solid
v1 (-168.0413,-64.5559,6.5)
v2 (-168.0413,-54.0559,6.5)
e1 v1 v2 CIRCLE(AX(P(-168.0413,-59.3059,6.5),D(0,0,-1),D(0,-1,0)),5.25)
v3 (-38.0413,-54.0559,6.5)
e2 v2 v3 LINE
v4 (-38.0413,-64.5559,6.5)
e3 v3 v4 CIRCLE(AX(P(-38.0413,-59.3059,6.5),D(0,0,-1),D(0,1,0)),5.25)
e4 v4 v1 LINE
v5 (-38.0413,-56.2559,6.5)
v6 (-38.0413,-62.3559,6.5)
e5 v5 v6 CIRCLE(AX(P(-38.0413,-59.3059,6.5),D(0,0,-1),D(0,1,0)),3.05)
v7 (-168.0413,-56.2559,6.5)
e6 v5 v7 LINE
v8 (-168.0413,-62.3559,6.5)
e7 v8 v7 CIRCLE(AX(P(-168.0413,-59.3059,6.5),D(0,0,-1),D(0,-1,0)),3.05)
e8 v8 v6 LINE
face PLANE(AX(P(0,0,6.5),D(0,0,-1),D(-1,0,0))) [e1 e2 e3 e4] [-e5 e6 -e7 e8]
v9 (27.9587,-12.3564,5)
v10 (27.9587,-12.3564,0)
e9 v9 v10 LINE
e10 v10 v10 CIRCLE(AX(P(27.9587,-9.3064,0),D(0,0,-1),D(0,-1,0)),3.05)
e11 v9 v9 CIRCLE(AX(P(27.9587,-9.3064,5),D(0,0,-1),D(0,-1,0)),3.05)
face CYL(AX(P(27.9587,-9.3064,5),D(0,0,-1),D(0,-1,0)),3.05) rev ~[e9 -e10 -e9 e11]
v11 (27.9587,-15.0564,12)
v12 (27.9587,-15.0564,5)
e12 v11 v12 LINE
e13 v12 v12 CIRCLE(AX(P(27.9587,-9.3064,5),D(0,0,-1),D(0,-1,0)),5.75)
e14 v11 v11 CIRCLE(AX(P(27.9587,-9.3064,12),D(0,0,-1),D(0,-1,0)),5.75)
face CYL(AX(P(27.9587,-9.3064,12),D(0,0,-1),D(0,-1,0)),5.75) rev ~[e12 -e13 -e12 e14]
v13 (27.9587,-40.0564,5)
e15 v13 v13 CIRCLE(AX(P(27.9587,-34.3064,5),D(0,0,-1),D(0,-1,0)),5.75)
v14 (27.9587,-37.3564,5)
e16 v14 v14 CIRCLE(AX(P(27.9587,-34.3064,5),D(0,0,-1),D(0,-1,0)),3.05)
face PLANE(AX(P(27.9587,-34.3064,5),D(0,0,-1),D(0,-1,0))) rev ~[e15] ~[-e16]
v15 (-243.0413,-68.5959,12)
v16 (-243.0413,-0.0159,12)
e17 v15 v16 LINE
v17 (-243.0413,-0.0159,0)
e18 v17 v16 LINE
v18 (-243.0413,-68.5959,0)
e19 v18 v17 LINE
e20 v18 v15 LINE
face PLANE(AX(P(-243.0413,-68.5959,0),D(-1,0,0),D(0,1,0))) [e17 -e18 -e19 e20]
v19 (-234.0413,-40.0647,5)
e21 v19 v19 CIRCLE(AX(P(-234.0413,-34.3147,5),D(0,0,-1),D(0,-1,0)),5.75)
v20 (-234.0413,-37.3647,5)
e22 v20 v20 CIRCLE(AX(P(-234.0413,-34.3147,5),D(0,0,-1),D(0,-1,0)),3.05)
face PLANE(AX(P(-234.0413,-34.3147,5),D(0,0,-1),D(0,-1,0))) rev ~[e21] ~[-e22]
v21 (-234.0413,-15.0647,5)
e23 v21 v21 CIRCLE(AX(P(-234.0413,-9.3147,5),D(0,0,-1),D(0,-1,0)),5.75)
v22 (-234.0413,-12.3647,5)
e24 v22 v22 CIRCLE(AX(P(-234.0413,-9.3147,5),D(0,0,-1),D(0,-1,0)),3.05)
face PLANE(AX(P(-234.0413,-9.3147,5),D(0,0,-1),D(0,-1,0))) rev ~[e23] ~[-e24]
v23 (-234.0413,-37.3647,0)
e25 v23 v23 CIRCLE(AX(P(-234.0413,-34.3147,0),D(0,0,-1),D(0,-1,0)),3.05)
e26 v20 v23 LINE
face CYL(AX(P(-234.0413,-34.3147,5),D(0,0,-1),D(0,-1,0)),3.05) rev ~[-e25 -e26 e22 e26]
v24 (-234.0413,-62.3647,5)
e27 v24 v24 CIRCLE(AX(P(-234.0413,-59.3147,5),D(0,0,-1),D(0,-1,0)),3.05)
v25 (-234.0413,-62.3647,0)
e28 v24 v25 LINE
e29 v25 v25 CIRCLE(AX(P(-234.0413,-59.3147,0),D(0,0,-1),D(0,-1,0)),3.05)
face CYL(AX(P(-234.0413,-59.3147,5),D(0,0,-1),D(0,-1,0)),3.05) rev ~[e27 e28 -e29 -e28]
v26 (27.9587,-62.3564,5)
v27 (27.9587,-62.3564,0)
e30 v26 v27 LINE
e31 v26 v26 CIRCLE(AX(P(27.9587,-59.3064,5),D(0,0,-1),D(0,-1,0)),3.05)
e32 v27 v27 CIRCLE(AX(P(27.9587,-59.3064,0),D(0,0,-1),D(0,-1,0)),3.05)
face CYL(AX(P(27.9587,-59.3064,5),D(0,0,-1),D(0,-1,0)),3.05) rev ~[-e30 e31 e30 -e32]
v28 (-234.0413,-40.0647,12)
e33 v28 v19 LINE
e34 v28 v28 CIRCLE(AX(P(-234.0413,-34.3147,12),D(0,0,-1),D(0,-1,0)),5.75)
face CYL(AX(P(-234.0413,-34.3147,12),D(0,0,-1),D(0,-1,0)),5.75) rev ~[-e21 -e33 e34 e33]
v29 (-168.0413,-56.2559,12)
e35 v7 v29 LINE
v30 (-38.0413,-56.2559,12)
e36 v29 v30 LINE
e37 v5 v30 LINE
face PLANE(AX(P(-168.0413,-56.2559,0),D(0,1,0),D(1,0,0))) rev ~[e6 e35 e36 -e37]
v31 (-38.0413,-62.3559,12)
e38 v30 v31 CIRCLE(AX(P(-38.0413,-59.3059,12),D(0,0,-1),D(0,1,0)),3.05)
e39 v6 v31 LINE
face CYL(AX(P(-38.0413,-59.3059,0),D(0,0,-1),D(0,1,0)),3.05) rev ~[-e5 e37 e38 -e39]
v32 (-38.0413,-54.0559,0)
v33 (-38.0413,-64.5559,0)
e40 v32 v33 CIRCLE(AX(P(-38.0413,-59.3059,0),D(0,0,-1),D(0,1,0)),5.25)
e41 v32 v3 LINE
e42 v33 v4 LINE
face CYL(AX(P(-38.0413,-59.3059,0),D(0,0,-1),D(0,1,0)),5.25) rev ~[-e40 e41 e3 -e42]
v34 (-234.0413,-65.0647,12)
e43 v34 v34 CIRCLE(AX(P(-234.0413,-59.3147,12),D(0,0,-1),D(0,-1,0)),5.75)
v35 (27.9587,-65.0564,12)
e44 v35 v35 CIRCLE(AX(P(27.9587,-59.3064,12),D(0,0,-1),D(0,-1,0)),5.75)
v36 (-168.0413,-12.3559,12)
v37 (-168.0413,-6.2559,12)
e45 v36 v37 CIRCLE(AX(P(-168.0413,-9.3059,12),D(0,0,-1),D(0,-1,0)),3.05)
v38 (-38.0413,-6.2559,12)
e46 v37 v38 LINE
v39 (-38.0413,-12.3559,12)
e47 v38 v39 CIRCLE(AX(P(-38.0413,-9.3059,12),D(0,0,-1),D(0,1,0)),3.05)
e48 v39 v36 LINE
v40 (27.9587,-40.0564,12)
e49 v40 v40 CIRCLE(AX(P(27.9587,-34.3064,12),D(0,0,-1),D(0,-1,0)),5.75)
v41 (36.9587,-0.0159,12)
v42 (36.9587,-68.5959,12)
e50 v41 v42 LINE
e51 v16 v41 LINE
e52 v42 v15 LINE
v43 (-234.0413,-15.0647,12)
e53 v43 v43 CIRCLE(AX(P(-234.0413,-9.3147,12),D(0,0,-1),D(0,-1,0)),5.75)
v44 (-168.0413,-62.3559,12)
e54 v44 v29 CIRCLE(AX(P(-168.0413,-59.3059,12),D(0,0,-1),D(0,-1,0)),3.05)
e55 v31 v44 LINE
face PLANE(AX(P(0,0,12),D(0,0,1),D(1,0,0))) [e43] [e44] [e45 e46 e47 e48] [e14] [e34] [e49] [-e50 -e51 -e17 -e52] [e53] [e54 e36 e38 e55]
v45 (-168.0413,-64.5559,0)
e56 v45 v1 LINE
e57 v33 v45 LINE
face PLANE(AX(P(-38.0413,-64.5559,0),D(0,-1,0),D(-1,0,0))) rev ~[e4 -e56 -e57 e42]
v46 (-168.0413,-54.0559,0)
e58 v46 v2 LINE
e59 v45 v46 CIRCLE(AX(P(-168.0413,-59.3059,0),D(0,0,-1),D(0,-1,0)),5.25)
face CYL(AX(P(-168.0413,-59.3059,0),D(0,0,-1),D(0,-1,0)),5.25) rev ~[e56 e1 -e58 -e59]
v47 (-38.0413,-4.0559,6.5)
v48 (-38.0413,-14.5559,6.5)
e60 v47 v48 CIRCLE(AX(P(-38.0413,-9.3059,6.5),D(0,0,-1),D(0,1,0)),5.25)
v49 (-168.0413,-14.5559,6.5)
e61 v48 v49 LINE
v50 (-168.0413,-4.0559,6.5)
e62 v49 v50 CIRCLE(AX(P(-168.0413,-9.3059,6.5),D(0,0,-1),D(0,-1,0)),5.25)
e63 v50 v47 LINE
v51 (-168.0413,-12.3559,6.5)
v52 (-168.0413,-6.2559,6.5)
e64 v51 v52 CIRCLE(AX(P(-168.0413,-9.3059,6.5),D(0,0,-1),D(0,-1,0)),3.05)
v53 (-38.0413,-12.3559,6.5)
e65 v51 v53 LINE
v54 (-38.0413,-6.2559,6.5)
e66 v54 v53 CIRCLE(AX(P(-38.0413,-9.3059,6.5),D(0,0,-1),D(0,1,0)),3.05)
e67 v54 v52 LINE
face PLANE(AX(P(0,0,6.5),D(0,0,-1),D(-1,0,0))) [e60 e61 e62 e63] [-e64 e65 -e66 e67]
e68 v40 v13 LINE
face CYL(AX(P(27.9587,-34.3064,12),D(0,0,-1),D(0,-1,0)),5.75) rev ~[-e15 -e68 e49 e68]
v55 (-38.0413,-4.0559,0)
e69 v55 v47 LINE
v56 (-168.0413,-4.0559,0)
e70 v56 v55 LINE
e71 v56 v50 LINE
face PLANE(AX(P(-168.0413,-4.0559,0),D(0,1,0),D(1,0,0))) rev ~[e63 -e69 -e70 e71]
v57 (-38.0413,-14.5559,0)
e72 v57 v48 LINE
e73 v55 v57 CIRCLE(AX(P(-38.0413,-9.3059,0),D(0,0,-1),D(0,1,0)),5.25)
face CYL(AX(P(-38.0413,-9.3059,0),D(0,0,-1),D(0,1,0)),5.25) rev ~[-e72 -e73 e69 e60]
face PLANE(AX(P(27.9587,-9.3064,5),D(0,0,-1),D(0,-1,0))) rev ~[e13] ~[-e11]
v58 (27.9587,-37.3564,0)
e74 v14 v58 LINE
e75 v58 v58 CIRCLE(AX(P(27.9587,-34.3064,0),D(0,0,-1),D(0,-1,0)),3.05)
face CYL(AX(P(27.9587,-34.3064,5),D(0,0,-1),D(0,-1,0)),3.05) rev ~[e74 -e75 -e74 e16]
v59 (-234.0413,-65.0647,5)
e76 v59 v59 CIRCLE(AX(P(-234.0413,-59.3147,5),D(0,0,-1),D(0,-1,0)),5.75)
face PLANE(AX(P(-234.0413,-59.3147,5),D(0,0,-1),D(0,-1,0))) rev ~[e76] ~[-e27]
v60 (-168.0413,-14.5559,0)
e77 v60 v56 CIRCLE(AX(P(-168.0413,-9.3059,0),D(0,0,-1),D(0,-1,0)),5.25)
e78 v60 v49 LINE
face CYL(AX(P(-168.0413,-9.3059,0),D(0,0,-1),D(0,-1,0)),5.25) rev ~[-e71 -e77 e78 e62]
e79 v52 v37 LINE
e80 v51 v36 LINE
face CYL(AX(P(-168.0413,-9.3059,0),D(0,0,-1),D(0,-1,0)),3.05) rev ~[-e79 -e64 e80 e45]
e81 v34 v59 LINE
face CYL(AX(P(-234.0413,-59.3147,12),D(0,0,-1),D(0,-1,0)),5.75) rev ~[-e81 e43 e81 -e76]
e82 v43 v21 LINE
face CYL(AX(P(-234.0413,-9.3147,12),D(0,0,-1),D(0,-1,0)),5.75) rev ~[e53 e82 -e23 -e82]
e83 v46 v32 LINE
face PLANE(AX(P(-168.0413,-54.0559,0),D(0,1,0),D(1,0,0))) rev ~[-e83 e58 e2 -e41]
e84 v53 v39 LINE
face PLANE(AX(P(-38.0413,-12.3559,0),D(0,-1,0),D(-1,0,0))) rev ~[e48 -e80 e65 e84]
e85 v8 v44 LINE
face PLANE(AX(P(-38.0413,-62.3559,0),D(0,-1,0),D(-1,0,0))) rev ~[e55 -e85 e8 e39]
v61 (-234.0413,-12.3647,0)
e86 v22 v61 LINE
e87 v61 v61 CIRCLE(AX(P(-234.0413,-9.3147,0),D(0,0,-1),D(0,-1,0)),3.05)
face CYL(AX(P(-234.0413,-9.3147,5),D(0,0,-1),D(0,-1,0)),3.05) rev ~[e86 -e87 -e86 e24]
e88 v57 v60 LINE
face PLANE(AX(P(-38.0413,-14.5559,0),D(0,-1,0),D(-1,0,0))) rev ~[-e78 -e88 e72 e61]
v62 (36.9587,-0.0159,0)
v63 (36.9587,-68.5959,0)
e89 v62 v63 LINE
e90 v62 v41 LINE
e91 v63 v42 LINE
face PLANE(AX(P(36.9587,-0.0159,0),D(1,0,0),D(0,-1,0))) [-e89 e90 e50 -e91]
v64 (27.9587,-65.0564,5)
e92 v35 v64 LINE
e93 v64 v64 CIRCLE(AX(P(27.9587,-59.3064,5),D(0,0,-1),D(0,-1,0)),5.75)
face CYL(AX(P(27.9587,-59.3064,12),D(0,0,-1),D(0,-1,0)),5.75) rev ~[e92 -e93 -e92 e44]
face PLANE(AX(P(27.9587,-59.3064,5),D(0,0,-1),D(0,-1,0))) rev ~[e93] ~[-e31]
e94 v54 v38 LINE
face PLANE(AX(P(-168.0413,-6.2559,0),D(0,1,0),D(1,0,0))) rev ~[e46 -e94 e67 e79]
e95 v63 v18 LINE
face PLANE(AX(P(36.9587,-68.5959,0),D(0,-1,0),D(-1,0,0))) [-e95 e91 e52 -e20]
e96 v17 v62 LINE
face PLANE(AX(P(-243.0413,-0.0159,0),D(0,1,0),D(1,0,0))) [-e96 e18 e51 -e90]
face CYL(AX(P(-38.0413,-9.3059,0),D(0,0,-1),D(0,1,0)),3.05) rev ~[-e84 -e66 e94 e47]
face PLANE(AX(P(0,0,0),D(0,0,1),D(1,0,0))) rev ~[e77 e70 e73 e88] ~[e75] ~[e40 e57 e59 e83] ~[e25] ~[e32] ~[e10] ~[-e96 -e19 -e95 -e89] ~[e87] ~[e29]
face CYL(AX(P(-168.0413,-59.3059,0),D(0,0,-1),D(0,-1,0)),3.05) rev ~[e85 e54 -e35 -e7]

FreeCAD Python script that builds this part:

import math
import FreeCAD as App
import Part
import Sketcher
from FreeCAD import Vector

doc = App.newDocument("Part")
params = doc.addObject("Spreadsheet::Sheet", "Params")
for row, (alias, value) in enumerate([
    ("sketch1_width", "280 mm"),
    ("sketch1_height", "68.58 mm"),
    ("pad1_length", "12 mm"),
    ("sketch2_radius", "3.05 mm"),
    ("sketch2_width", "130 mm"),
    ("pocket1_length", "12 mm"),
    ("sketch3_radius", "5.25 mm"),
    ("sketch3_width", "130 mm"),
    ("pocket2_length", "6.5 mm"),
    ("sketch4_diameter", "6.1 mm"),
    ("hole_diameter", "6.1 mm"),
    ("hole_depth", "20 mm"),
    ("hole_cbore_diameter", "11.5 mm"),
    ("hole_cbore_depth", "7 mm"),
], start=1):
    params.set(f"A{row}", alias)
    params.set(f"B{row}", "=" + value)
    params.setAlias(f"B{row}", alias)

body = doc.addObject("PartDesign::Body", "Body")

sketch1 = doc.addObject("Sketcher::SketchObject", "Sketch")
body.addObject(sketch1)
sketch1.AttachmentSupport = (doc.XY_Plane, [""])
sketch1.MapMode = "FlatFace"
sketch1.addGeometry(Part.LineSegment(Vector(37, 0, 0), Vector(-243, 0, 0)), False)
sketch1.addGeometry(Part.LineSegment(Vector(-243, 0, 0), Vector(-243, -69, 0)), False)
sketch1.addGeometry(Part.LineSegment(Vector(-243, -69, 0), Vector(37, -69, 0)), False)
sketch1.addGeometry(Part.LineSegment(Vector(37, -69, 0), Vector(37, 0, 0)), False)
sketch1.addConstraint(Sketcher.Constraint("Coincident", 0, 2, 1, 1))
sketch1.addConstraint(Sketcher.Constraint("Coincident", 1, 2, 2, 1))
sketch1.addConstraint(Sketcher.Constraint("Coincident", 2, 2, 3, 1))
sketch1.addConstraint(Sketcher.Constraint("Coincident", 3, 2, 0, 1))
sketch1.addConstraint(Sketcher.Constraint("Horizontal", 0))
sketch1.addConstraint(Sketcher.Constraint("Vertical", 1))
sketch1.addConstraint(Sketcher.Constraint("Horizontal", 2))
sketch1.addConstraint(Sketcher.Constraint("Vertical", 3))
sketch1.addConstraint(Sketcher.Constraint("DistanceX", 0, 2, 0, 1, 280.0))
sketch1.addConstraint(Sketcher.Constraint("DistanceY", 1, 2, 1, 1, 68.58))
sketch1.addConstraint(Sketcher.Constraint("DistanceY", 0, 2, -1, 1, 0.016))
sketch1.addConstraint(Sketcher.Constraint("DistanceX", 0, 2, -1, 1, 243.0413))
sketch1.setExpression("Constraints[8]", "Params.sketch1_width")
sketch1.setExpression("Constraints[9]", "Params.sketch1_height")
pad1 = doc.addObject("PartDesign::Pad", "Pad")
body.addObject(pad1)
pad1.Profile = sketch1
pad1.setExpression("Length", "Params.pad1_length")

sketch2 = doc.addObject("Sketcher::SketchObject", "Sketch001")
body.addObject(sketch2)
sketch2.AttachmentSupport = (doc.XY_Plane, [""])
sketch2.MapMode = "FlatFace"
sketch2.addGeometry(Part.ArcOfCircle(Part.Circle(Vector(-38, -9.3, 0), Vector(0, 0, 1), 3), math.radians(-90), math.radians(90)), False)
sketch2.addGeometry(Part.LineSegment(Vector(-38, -12.4, 0), Vector(-168, -12.4, 0)), False)
sketch2.addGeometry(Part.ArcOfCircle(Part.Circle(Vector(-168, -9.3, 0), Vector(0, 0, 1), 3.1), math.radians(90), math.radians(270)), False)
sketch2.addGeometry(Part.LineSegment(Vector(-168, -6.3, 0), Vector(-38, -6.3, 0)), False)
sketch2.addGeometry(Part.ArcOfCircle(Part.Circle(Vector(-38, -59.3, 0), Vector(0, 0, 1), 3.1), math.radians(-90), math.radians(90)), False)
sketch2.addGeometry(Part.LineSegment(Vector(-38, -62.4, 0), Vector(-168, -62.4, 0)), False)
sketch2.addGeometry(Part.ArcOfCircle(Part.Circle(Vector(-168, -59.3, 0), Vector(0, 0, 1), 3), math.radians(90), math.radians(270)), False)
sketch2.addGeometry(Part.LineSegment(Vector(-168, -56.3, 0), Vector(-38, -56.3, 0)), False)
sketch2.addConstraint(Sketcher.Constraint("Tangent", 0, 1, 1, 1))
sketch2.addConstraint(Sketcher.Constraint("Tangent", 1, 2, 2, 2))
sketch2.addConstraint(Sketcher.Constraint("Tangent", 2, 1, 3, 1))
sketch2.addConstraint(Sketcher.Constraint("Tangent", 3, 2, 0, 2))
sketch2.addConstraint(Sketcher.Constraint("Tangent", 4, 1, 5, 1))
sketch2.addConstraint(Sketcher.Constraint("Tangent", 5, 2, 6, 2))
sketch2.addConstraint(Sketcher.Constraint("Tangent", 6, 1, 7, 1))
sketch2.addConstraint(Sketcher.Constraint("Tangent", 7, 2, 4, 2))
sketch2.addConstraint(Sketcher.Constraint("Horizontal", 1))
sketch2.addConstraint(Sketcher.Constraint("Horizontal", 3))
sketch2.addConstraint(Sketcher.Constraint("Horizontal", 5))
sketch2.addConstraint(Sketcher.Constraint("Horizontal", 7))
sketch2.addConstraint(Sketcher.Constraint("Equal", 2, 4))
sketch2.addConstraint(Sketcher.Constraint("Vertical", 0, 3, 4, 3))
sketch2.addConstraint(Sketcher.Constraint("Vertical", 2, 3, 6, 3))
sketch2.addConstraint(Sketcher.Constraint("Radius", 0, 3.05))
sketch2.addConstraint(Sketcher.Constraint("DistanceX", 1, 2, 1, 1, 130.0))
sketch2.addConstraint(Sketcher.Constraint("DistanceY", 4, 3, 0, 3, 50.0))
sketch2.addConstraint(Sketcher.Constraint("DistanceY", 0, 3, -1, 1, 9.306))
sketch2.addConstraint(Sketcher.Constraint("DistanceX", 0, 3, -1, 1, 38.0413))
sketch2.setExpression("Constraints[15]", "Params.sketch2_radius")
sketch2.setExpression("Constraints[16]", "Params.sketch2_width")
pocket1 = doc.addObject("PartDesign::Pocket", "Pocket")
body.addObject(pocket1)
pocket1.Profile = sketch2
pocket1.setExpression("Length", "Params.pocket1_length")
pocket1.Reversed = True

sketch3 = doc.addObject("Sketcher::SketchObject", "Sketch002")
body.addObject(sketch3)
sketch3.AttachmentSupport = (doc.XY_Plane, [""])
sketch3.MapMode = "FlatFace"
sketch3.addGeometry(Part.ArcOfCircle(Part.Circle(Vector(-38, -9, 0), Vector(0, 0, 1), 5), math.radians(-90), math.radians(90)), False)
sketch3.addGeometry(Part.LineSegment(Vector(-38, -15, 0), Vector(-168, -15, 0)), False)
sketch3.addGeometry(Part.ArcOfCircle(Part.Circle(Vector(-168, -9, 0), Vector(0, 0, 1), 5), math.radians(90), math.radians(270)), False)
sketch3.addGeometry(Part.LineSegment(Vector(-168, -4, 0), Vector(-38, -4, 0)), False)
sketch3.addGeometry(Part.ArcOfCircle(Part.Circle(Vector(-38, -59, 0), Vector(0, 0, 1), 5), math.radians(-90), math.radians(90)), False)
sketch3.addGeometry(Part.LineSegment(Vector(-38, -65, 0), Vector(-168, -65, 0)), False)
sketch3.addGeometry(Part.ArcOfCircle(Part.Circle(Vector(-168, -59, 0), Vector(0, 0, 1), 5), math.radians(90), math.radians(270)), False)
sketch3.addGeometry(Part.LineSegment(Vector(-168, -54, 0), Vector(-38, -54, 0)), False)
sketch3.addConstraint(Sketcher.Constraint("Tangent", 0, 1, 1, 1))
sketch3.addConstraint(Sketcher.Constraint("Tangent", 1, 2, 2, 2))
sketch3.addConstraint(Sketcher.Constraint("Tangent", 2, 1, 3, 1))
sketch3.addConstraint(Sketcher.Constraint("Tangent", 3, 2, 0, 2))
sketch3.addConstraint(Sketcher.Constraint("Tangent", 4, 1, 5, 1))
sketch3.addConstraint(Sketcher.Constraint("Tangent", 5, 2, 6, 2))
sketch3.addConstraint(Sketcher.Constraint("Tangent", 6, 1, 7, 1))
sketch3.addConstraint(Sketcher.Constraint("Tangent", 7, 2, 4, 2))
sketch3.addConstraint(Sketcher.Constraint("Horizontal", 1))
sketch3.addConstraint(Sketcher.Constraint("Horizontal", 3))
sketch3.addConstraint(Sketcher.Constraint("Horizontal", 5))
sketch3.addConstraint(Sketcher.Constraint("Horizontal", 7))
sketch3.addConstraint(Sketcher.Constraint("Equal", 2, 4))
sketch3.addConstraint(Sketcher.Constraint("Vertical", 0, 3, 4, 3))
sketch3.addConstraint(Sketcher.Constraint("Vertical", 2, 3, 6, 3))
sketch3.addConstraint(Sketcher.Constraint("Radius", 0, 5.25))
sketch3.addConstraint(Sketcher.Constraint("DistanceX", 1, 2, 1, 1, 130.0))
sketch3.addConstraint(Sketcher.Constraint("DistanceY", 4, 3, 0, 3, 50.0))
sketch3.addConstraint(Sketcher.Constraint("DistanceY", 0, 3, -1, 1, 9.306))
sketch3.addConstraint(Sketcher.Constraint("DistanceX", 0, 3, -1, 1, 38.0413))
sketch3.setExpression("Constraints[15]", "Params.sketch3_radius")
sketch3.setExpression("Constraints[16]", "Params.sketch3_width")
pocket2 = doc.addObject("PartDesign::Pocket", "Pocket001")
body.addObject(pocket2)
pocket2.Profile = sketch3
pocket2.setExpression("Length", "Params.pocket2_length")
pocket2.Reversed = True

sketch4 = doc.addObject("Sketcher::SketchObject", "Sketch003")
body.addObject(sketch4)
sketch4.AttachmentSupport = (doc.XY_Plane, [""])
sketch4.MapMode = "FlatFace"
sketch4.AttachmentOffset = App.Placement(Vector(0, 0, 12), App.Rotation())
sketch4.addGeometry(Part.Circle(Vector(28, -59.3, 0), Vector(0, 0, 1), 3), False)
sketch4.addGeometry(Part.Circle(Vector(28, -34.3, 0), Vector(0, 0, 1), 3), False)
sketch4.addGeometry(Part.Circle(Vector(28, -9.3, 0), Vector(0, 0, 1), 3), False)
sketch4.addGeometry(Part.Circle(Vector(-234, -59.3, 0), Vector(0, 0, 1), 3), False)
sketch4.addGeometry(Part.Circle(Vector(-234, -34.3, 0), Vector(0, 0, 1), 3), False)
sketch4.addGeometry(Part.Circle(Vector(-234, -9.3, 0), Vector(0, 0, 1), 3), False)
sketch4.addConstraint(Sketcher.Constraint("Equal", 0, 1))
sketch4.addConstraint(Sketcher.Constraint("Equal", 1, 2))
sketch4.addConstraint(Sketcher.Constraint("Equal", 2, 3))
sketch4.addConstraint(Sketcher.Constraint("Equal", 3, 4))
sketch4.addConstraint(Sketcher.Constraint("Equal", 4, 5))
sketch4.addConstraint(Sketcher.Constraint("Vertical", 0, 3, 1, 3))
sketch4.addConstraint(Sketcher.Constraint("Vertical", 1, 3, 2, 3))
sketch4.addConstraint(Sketcher.Constraint("Vertical", 3, 3, 4, 3))
sketch4.addConstraint(Sketcher.Constraint("Vertical", 4, 3, 5, 3))
sketch4.addConstraint(Sketcher.Constraint("Diameter", 0, 6.1))
sketch4.addConstraint(Sketcher.Constraint("DistanceY", 0, 3, 1, 3, 25.0))
sketch4.addConstraint(Sketcher.Constraint("DistanceY", 1, 3, 2, 3, 25.0))
sketch4.addConstraint(Sketcher.Constraint("DistanceX", 3, 3, 0, 3, 262.0))
sketch4.addConstraint(Sketcher.Constraint("DistanceY", 3, 3, 4, 3, 25.0))
sketch4.addConstraint(Sketcher.Constraint("DistanceY", 4, 3, 5, 3, 25.0))
sketch4.addConstraint(Sketcher.Constraint("DistanceX", -1, 1, 0, 3, 27.9587))
sketch4.addConstraint(Sketcher.Constraint("DistanceY", 0, 3, -1, 1, 59.3064))
sketch4.addConstraint(Sketcher.Constraint("DistanceY", 3, 3, -1, 1, 59.3147))
sketch4.setExpression("Constraints[9]", "Params.sketch4_diameter")
doc.recompute()
hole = doc.addObject("PartDesign::Hole", "Hole")
body.addObject(hole)
hole.Profile = sketch4
hole.ThreadType = "None"
hole.setExpression("Diameter", "Params.hole_diameter")
hole.DepthType = "Dimension"
hole.setExpression("Depth", "Params.hole_depth")
hole.DrillPoint = "Angled"
hole.DrillPointAngle = 118
hole.HoleCutType = "Counterbore"
hole.setExpression("HoleCutDiameter", "Params.hole_cbore_diameter")
hole.setExpression("HoleCutDepth", "Params.hole_cbore_depth")

doc.recompute()
